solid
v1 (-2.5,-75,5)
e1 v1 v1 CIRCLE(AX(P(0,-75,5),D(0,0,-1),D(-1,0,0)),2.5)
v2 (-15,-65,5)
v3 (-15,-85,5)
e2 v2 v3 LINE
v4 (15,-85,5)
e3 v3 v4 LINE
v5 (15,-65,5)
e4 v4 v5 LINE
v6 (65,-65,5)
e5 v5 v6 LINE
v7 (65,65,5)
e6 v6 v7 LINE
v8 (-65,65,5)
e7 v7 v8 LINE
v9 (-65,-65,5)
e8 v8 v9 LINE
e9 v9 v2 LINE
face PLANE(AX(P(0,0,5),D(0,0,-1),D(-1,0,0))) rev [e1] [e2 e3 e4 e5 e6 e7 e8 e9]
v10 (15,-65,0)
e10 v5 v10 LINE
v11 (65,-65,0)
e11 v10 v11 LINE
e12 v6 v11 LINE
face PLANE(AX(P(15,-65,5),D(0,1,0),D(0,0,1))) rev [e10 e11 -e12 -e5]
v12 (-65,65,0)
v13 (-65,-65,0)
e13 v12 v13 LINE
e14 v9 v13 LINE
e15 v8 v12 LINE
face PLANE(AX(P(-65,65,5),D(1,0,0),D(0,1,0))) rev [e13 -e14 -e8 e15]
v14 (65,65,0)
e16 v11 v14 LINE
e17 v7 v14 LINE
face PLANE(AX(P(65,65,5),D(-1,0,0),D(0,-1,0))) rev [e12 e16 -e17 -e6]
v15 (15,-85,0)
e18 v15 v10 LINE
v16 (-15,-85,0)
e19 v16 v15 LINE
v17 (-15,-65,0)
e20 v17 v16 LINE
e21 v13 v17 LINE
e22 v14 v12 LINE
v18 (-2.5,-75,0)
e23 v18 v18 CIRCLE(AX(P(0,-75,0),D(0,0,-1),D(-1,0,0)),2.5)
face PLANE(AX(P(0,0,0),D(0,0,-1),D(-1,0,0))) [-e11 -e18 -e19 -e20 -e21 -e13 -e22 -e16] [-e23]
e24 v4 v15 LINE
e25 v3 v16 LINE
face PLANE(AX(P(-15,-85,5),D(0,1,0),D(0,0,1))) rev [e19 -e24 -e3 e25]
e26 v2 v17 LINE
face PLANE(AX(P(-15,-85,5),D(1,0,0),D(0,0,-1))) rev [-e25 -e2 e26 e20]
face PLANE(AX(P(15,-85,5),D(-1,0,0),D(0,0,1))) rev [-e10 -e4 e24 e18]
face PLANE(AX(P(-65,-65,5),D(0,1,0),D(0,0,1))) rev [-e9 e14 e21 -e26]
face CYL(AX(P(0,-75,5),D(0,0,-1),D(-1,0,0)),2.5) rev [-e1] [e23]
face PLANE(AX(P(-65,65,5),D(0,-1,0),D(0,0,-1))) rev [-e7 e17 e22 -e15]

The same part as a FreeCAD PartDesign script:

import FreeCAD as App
import Part
import Sketcher
Q = App.Units.Quantity


def add_polygon(sketch, points):
    """Adds a closed chain of lines whose ends are joined by coincident constraints."""
    first, n = sketch.GeometryCount, len(points)
    for a, b in zip(points, points[1:] + points[:1]):
        sketch.addGeometry(Part.LineSegment(App.Vector(*a, 0), App.Vector(*b, 0)), False)
    for i in range(n):
        sketch.addConstraint(Sketcher.Constraint("Coincident", first + i, 2, first + (i + 1) % n, 1))

doc = App.newDocument("Part")
body = doc.addObject("PartDesign::Body", "Body")

sketch1 = body.newObject("Sketcher::SketchObject", "Sketch")
sketch1.AttachmentSupport = (doc.getObject("XY_Plane"), [""])
sketch1.MapMode = "FlatFace"
add_polygon(sketch1, [(-15, -65), (-15, -85), (15, -85), (15, -65), (65, -65), (65, 65), (-65, 65), (-65, -65)])
sketch1.addConstraint([
    Sketcher.Constraint("Vertical", 0),
    Sketcher.Constraint("Horizontal", 1),
    Sketcher.Constraint("Vertical", 2),
    Sketcher.Constraint("Horizontal", 3),
    Sketcher.Constraint("Vertical", 4),
    Sketcher.Constraint("Horizontal", 5),
    Sketcher.Constraint("Vertical", 6),
    Sketcher.Constraint("Horizontal", 7),
    Sketcher.Constraint("Symmetric", 3, 2, 5, 2, -1, 1),
    Sketcher.Constraint("Symmetric", 2, 2, 7, 2, -2),
    Sketcher.Constraint("Equal", 5, 4),
    Sketcher.Constraint("DistanceX", 1, 1, 1, 2, Q("30 mm")),
    Sketcher.Constraint("DistanceX", 3, 1, 3, 2, Q("50 mm")),
    Sketcher.Constraint("DistanceY", 0, 2, 0, 1, Q("20 mm")),
])
pad1 = body.newObject("PartDesign::Pad", "Pad")
pad1.Profile = sketch1
pad1.Length = 5

sketch2 = body.newObject("Sketcher::SketchObject", "Sketch001")
sketch2.AttachmentSupport = (doc.getObject("XY_Plane"), [""])
sketch2.MapMode = "FlatFace"
sketch2.addGeometry(Part.Circle(App.Vector(0, -75, 0), App.Vector(0, 0, 1), 2.5), False)
sketch2.addConstraint([
    Sketcher.Constraint("PointOnObject", 0, 3, -2),
    Sketcher.Constraint("Diameter", 0, Q("5 mm")),
    Sketcher.Constraint("DistanceY", 0, 3, -1, 1, Q("75 mm")),
])
pocket1 = body.newObject("PartDesign::Pocket", "Pocket")
pocket1.Profile = sketch2
pocket1.Length = 5
pocket1.Reversed = True

doc.recompute()
